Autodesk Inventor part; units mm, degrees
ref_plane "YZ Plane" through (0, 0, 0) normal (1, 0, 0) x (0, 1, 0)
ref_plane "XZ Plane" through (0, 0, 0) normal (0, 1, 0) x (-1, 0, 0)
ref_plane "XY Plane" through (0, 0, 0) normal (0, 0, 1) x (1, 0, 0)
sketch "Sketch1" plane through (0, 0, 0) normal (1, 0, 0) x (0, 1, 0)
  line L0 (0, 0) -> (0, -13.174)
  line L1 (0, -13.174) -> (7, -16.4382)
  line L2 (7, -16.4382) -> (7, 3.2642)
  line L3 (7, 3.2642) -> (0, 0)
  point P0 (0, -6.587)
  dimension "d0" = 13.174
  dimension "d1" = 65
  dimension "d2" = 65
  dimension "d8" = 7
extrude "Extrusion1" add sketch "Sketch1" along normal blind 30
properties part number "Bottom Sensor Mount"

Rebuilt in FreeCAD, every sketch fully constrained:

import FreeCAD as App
import Part
import Sketcher

V = App.Vector
Q = App.Units.Quantity


def add_polygon(sketch, points):
    """Adds a closed chain of lines whose ends are joined by coincident constraints."""
    first, n = sketch.GeometryCount, len(points)
    for a, b in zip(points, points[1:] + points[:1]):
        sketch.addGeometry(Part.LineSegment(App.Vector(*a, 0), App.Vector(*b, 0)), False)
    for i in range(n):
        sketch.addConstraint(Sketcher.Constraint("Coincident", first + i, 2, first + (i + 1) % n, 1))

doc = App.newDocument("Part")
body = doc.addObject("PartDesign::Body", "Body")

# Sketch on YZ plane
sketch1 = body.newObject("Sketcher::SketchObject", "Sketch")
sketch1.AttachmentSupport = (doc.getObject("YZ_Plane"), [""])
sketch1.MapMode = "FlatFace"
add_polygon(sketch1, [(7, 3), (0, 0), (0, -13), (7, -16)])  # lines 0-3
sketch1.addConstraint(Sketcher.Constraint("Vertical", 1))
sketch1.addConstraint(Sketcher.Constraint("Vertical", 3))
sketch1.addConstraint(Sketcher.Constraint("Coincident", 0, 2, -1, 1))
sketch1.addConstraint(Sketcher.Constraint("Equal", 0, 2))
sketch1.addConstraint(Sketcher.Constraint("DistanceX", -1, 1, 2, 2, Q("7 mm")))
sketch1.addConstraint(Sketcher.Constraint("DistanceY", 1, 2, 1, 1, Q("13.174 mm")))
sketch1.addConstraint(Sketcher.Constraint("Angle", 0, Q("-154.9997 deg")))
pad1 = body.newObject("PartDesign::Pad", "Pad")
pad1.Profile = sketch1
pad1.Length = 30

doc.recompute()
